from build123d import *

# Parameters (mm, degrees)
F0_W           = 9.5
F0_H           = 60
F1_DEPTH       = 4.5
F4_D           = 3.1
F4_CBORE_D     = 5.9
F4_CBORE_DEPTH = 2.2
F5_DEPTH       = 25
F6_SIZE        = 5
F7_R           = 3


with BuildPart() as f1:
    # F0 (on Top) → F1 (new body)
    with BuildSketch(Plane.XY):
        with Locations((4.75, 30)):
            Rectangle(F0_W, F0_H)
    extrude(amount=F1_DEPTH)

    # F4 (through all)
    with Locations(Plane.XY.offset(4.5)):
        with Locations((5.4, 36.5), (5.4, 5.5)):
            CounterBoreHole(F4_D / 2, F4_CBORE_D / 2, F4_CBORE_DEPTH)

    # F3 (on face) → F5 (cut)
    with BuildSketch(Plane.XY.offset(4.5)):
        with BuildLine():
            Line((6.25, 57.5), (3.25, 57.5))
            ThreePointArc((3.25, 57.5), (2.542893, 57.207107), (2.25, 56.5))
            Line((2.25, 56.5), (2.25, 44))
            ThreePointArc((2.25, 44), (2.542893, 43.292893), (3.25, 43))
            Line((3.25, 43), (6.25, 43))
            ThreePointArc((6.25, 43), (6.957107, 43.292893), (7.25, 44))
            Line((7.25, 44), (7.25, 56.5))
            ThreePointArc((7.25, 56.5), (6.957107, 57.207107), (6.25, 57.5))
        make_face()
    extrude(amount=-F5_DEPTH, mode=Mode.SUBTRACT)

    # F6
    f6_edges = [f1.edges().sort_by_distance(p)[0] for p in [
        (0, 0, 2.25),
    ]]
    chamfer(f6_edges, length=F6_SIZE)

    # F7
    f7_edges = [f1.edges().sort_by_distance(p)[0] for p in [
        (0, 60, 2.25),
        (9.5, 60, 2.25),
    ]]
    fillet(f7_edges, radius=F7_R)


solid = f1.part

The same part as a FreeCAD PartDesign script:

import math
import FreeCAD as App
import Part
import Sketcher
Q = App.Units.Quantity


def edges_at(feature, points):
    """Names of the edges that pass closest to the given points."""
    edges = feature.Shape.Edges
    near = lambda p: min(range(len(edges)), key=lambda i: edges[i].distToShape(Part.Vertex(*p))[0])
    return sorted({f"Edge{near(p) + 1}" for p in points})


def add_polygon(sketch, points):
    """Adds a closed chain of lines whose ends are joined by coincident constraints."""
    first, n = sketch.GeometryCount, len(points)
    for a, b in zip(points, points[1:] + points[:1]):
        sketch.addGeometry(Part.LineSegment(App.Vector(*a, 0), App.Vector(*b, 0)), False)
    for i in range(n):
        sketch.addConstraint(Sketcher.Constraint("Coincident", first + i, 2, first + (i + 1) % n, 1))

doc = App.newDocument("Part")
params = doc.addObject("Spreadsheet::Sheet", "Params")
for row, (alias, value) in enumerate([
    ("sketch1_height", "60 mm"),
    ("sketch1_width", "9.5 mm"),
    ("pad1_length", "4.5 mm"),
    ("sketch2_diameter", "3.1 mm"),
    ("hole_diameter", "3.1 mm"),
    ("hole_cbore_diameter", "5.9 mm"),
    ("hole_cbore_depth", "2.2 mm"),
    ("sketch3_radius", "0.999999 mm"),
    ("sketch3_width", "3 mm"),
    ("sketch3_height", "12.5 mm"),
    ("pocket1_length", "25 mm"),
    ("chamfer_size", "5 mm"),
    ("fillet_radius", "3 mm"),
], start=1):
    params.set(f"A{row}", alias)
    params.set(f"B{row}", "=" + value)
    params.setAlias(f"B{row}", alias)

body = doc.addObject("PartDesign::Body", "Body")

# Sketch on XY plane
sketch1 = doc.addObject("Sketcher::SketchObject", "Sketch")
body.addObject(sketch1)
sketch1.AttachmentSupport = (doc.XY_Plane, [""])
sketch1.MapMode = "FlatFace"
add_polygon(sketch1, [(0, 60), (0, 0), (10, 0), (10, 60)])  # lines 0-3
sketch1.addConstraint([
    Sketcher.Constraint("Vertical", 0),
    Sketcher.Constraint("Horizontal", 1),
    Sketcher.Constraint("Vertical", 2),
    Sketcher.Constraint("Horizontal", 3),
    Sketcher.Constraint("Coincident", 0, 2, -1, 1),
    Sketcher.Constraint("DistanceY", 0, 2, 0, 1, Q("60 mm")),
    Sketcher.Constraint("DistanceX", 1, 1, 1, 2, Q("9.5 mm")),
])
sketch1.setExpression("Constraints[9]", "Params.sketch1_height")
sketch1.setExpression("Constraints[10]", "Params.sketch1_width")
pad1 = doc.addObject("PartDesign::Pad", "Pad")
body.addObject(pad1)
pad1.Profile = sketch1
pad1.setExpression("Length", "Params.pad1_length")

# Sketch on XY plane
sketch2 = doc.addObject("Sketcher::SketchObject", "Sketch001")
body.addObject(sketch2)
sketch2.AttachmentSupport = (doc.XY_Plane, [""])
sketch2.MapMode = "FlatFace"
sketch2.AttachmentOffset = App.Placement(App.Vector(0, 0, 4.5), App.Rotation())
sketch2.addGeometry([
    Part.Circle(App.Vector(5.4, 36.5, 0), App.Vector(0, 0, 1), 1.6),
    Part.Circle(App.Vector(5.4, 5.5, 0), App.Vector(0, 0, 1), 1.6),
], False)
sketch2.addConstraint([
    Sketcher.Constraint("Equal", 0, 1),
    Sketcher.Constraint("Vertical", 0, 3, 1, 3),
    Sketcher.Constraint("Diameter", 0, Q("3.1 mm")),
    Sketcher.Constraint("DistanceY", 1, 3, 0, 3, Q("31 mm")),
    Sketcher.Constraint("DistanceX", -1, 1, 0, 3, Q("5.4 mm")),
    Sketcher.Constraint("DistanceY", -1, 1, 0, 3, Q("36.5 mm")),
])
sketch2.setExpression("Constraints[2]", "Params.sketch2_diameter")
doc.recompute()
hole = doc.addObject("PartDesign::Hole", "Hole")
body.addObject(hole)
hole.Profile = sketch2
hole.ThreadType = "None"
hole.setExpression("Diameter", "Params.hole_diameter")
hole.DepthType = "ThroughAll"
hole.HoleCutType = "Counterbore"
hole.setExpression("HoleCutDiameter", "Params.hole_cbore_diameter")
hole.setExpression("HoleCutDepth", "Params.hole_cbore_depth")

# Sketch on XY plane
sketch3 = doc.addObject("Sketcher::SketchObject", "Sketch002")
body.addObject(sketch3)
sketch3.AttachmentSupport = (doc.XY_Plane, [""])
sketch3.MapMode = "FlatFace"
sketch3.AttachmentOffset = App.Placement(App.Vector(0, 0, 4.5), App.Rotation())
sketch3.addGeometry([
    Part.LineSegment(App.Vector(6.2, 57.5, 0), App.Vector(3.2, 57.5, 0)),  # 0
    Part.ArcOfCircle(Part.Circle(App.Vector(3.2, 56.5, 0), App.Vector(0, 0, 1), 1), math.radians(90), math.radians(180)),  # 1
    Part.LineSegment(App.Vector(2.2, 56.5, 0), App.Vector(2.2, 44, 0)),  # 2
    Part.ArcOfCircle(Part.Circle(App.Vector(3.2, 44, 0), App.Vector(0, 0, 1), 1), math.radians(180), math.radians(270)),  # 3
    Part.LineSegment(App.Vector(3.2, 43, 0), App.Vector(6.2, 43, 0)),  # 4
    Part.ArcOfCircle(Part.Circle(App.Vector(6.3, 44, 0), App.Vector(0, 0, 1), 1), math.radians(-90), math.radians(0)),  # 5
    Part.LineSegment(App.Vector(7.2, 44, 0), App.Vector(7.2, 56.5, 0)),  # 6
    Part.ArcOfCircle(Part.Circle(App.Vector(6.3, 56.5, 0), App.Vector(0, 0, 1), 1), math.radians(0), math.radians(90)),  # 7
], False)
sketch3.addConstraint([
    Sketcher.Constraint("Tangent", 0, 2, 1, 1),
    Sketcher.Constraint("Tangent", 1, 2, 2, 1),
    Sketcher.Constraint("Tangent", 2, 2, 3, 1),
    Sketcher.Constraint("Tangent", 3, 2, 4, 1),
    Sketcher.Constraint("Tangent", 4, 2, 5, 1),
    Sketcher.Constraint("Tangent", 5, 2, 6, 1),
    Sketcher.Constraint("Tangent", 6, 2, 7, 1),
    Sketcher.Constraint("Tangent", 7, 2, 0, 1),
    Sketcher.Constraint("Horizontal", 0),
    Sketcher.Constraint("Vertical", 2),
    Sketcher.Constraint("Horizontal", 4),
    Sketcher.Constraint("Vertical", 6),
    Sketcher.Constraint("Equal", 1, 3),
    Sketcher.Constraint("Equal", 3, 5),
    Sketcher.Constraint("Equal", 5, 7),
    Sketcher.Constraint("Radius", 1, Q("0.999999 mm")),
    Sketcher.Constraint("DistanceX", 0, 2, 0, 1, Q("3 mm")),
    Sketcher.Constraint("DistanceY", 2, 2, 2, 1, Q("12.5 mm")),
    Sketcher.Constraint("DistanceY", -1, 1, 3, 3, Q("43.999999 mm")),
    Sketcher.Constraint("DistanceX", -1, 1, 1, 3, Q("3.249999 mm")),
])
sketch3.setExpression("Constraints[15]", "Params.sketch3_radius")
sketch3.setExpression("Constraints[16]", "Params.sketch3_width")
sketch3.setExpression("Constraints[17]", "Params.sketch3_height")
pocket1 = doc.addObject("PartDesign::Pocket", "Pocket")
body.addObject(pocket1)
pocket1.Profile = sketch3
pocket1.setExpression("Length", "Params.pocket1_length")
doc.recompute()

chamfer = doc.addObject("PartDesign::Chamfer", "Chamfer")
body.addObject(chamfer)
chamfer.Base = (pocket1, edges_at(pocket1, [(0, 0, 2.25)]))
chamfer.setExpression("Size", "Params.chamfer_size")
doc.recompute()

fillet = doc.addObject("PartDesign::Fillet", "Fillet")
body.addObject(fillet)
fillet.Base = (chamfer, edges_at(chamfer, [(0, 60, 2.25), (9.5, 60, 2.25)]))
fillet.setExpression("Radius", "Params.fillet_radius")

doc.recompute()
